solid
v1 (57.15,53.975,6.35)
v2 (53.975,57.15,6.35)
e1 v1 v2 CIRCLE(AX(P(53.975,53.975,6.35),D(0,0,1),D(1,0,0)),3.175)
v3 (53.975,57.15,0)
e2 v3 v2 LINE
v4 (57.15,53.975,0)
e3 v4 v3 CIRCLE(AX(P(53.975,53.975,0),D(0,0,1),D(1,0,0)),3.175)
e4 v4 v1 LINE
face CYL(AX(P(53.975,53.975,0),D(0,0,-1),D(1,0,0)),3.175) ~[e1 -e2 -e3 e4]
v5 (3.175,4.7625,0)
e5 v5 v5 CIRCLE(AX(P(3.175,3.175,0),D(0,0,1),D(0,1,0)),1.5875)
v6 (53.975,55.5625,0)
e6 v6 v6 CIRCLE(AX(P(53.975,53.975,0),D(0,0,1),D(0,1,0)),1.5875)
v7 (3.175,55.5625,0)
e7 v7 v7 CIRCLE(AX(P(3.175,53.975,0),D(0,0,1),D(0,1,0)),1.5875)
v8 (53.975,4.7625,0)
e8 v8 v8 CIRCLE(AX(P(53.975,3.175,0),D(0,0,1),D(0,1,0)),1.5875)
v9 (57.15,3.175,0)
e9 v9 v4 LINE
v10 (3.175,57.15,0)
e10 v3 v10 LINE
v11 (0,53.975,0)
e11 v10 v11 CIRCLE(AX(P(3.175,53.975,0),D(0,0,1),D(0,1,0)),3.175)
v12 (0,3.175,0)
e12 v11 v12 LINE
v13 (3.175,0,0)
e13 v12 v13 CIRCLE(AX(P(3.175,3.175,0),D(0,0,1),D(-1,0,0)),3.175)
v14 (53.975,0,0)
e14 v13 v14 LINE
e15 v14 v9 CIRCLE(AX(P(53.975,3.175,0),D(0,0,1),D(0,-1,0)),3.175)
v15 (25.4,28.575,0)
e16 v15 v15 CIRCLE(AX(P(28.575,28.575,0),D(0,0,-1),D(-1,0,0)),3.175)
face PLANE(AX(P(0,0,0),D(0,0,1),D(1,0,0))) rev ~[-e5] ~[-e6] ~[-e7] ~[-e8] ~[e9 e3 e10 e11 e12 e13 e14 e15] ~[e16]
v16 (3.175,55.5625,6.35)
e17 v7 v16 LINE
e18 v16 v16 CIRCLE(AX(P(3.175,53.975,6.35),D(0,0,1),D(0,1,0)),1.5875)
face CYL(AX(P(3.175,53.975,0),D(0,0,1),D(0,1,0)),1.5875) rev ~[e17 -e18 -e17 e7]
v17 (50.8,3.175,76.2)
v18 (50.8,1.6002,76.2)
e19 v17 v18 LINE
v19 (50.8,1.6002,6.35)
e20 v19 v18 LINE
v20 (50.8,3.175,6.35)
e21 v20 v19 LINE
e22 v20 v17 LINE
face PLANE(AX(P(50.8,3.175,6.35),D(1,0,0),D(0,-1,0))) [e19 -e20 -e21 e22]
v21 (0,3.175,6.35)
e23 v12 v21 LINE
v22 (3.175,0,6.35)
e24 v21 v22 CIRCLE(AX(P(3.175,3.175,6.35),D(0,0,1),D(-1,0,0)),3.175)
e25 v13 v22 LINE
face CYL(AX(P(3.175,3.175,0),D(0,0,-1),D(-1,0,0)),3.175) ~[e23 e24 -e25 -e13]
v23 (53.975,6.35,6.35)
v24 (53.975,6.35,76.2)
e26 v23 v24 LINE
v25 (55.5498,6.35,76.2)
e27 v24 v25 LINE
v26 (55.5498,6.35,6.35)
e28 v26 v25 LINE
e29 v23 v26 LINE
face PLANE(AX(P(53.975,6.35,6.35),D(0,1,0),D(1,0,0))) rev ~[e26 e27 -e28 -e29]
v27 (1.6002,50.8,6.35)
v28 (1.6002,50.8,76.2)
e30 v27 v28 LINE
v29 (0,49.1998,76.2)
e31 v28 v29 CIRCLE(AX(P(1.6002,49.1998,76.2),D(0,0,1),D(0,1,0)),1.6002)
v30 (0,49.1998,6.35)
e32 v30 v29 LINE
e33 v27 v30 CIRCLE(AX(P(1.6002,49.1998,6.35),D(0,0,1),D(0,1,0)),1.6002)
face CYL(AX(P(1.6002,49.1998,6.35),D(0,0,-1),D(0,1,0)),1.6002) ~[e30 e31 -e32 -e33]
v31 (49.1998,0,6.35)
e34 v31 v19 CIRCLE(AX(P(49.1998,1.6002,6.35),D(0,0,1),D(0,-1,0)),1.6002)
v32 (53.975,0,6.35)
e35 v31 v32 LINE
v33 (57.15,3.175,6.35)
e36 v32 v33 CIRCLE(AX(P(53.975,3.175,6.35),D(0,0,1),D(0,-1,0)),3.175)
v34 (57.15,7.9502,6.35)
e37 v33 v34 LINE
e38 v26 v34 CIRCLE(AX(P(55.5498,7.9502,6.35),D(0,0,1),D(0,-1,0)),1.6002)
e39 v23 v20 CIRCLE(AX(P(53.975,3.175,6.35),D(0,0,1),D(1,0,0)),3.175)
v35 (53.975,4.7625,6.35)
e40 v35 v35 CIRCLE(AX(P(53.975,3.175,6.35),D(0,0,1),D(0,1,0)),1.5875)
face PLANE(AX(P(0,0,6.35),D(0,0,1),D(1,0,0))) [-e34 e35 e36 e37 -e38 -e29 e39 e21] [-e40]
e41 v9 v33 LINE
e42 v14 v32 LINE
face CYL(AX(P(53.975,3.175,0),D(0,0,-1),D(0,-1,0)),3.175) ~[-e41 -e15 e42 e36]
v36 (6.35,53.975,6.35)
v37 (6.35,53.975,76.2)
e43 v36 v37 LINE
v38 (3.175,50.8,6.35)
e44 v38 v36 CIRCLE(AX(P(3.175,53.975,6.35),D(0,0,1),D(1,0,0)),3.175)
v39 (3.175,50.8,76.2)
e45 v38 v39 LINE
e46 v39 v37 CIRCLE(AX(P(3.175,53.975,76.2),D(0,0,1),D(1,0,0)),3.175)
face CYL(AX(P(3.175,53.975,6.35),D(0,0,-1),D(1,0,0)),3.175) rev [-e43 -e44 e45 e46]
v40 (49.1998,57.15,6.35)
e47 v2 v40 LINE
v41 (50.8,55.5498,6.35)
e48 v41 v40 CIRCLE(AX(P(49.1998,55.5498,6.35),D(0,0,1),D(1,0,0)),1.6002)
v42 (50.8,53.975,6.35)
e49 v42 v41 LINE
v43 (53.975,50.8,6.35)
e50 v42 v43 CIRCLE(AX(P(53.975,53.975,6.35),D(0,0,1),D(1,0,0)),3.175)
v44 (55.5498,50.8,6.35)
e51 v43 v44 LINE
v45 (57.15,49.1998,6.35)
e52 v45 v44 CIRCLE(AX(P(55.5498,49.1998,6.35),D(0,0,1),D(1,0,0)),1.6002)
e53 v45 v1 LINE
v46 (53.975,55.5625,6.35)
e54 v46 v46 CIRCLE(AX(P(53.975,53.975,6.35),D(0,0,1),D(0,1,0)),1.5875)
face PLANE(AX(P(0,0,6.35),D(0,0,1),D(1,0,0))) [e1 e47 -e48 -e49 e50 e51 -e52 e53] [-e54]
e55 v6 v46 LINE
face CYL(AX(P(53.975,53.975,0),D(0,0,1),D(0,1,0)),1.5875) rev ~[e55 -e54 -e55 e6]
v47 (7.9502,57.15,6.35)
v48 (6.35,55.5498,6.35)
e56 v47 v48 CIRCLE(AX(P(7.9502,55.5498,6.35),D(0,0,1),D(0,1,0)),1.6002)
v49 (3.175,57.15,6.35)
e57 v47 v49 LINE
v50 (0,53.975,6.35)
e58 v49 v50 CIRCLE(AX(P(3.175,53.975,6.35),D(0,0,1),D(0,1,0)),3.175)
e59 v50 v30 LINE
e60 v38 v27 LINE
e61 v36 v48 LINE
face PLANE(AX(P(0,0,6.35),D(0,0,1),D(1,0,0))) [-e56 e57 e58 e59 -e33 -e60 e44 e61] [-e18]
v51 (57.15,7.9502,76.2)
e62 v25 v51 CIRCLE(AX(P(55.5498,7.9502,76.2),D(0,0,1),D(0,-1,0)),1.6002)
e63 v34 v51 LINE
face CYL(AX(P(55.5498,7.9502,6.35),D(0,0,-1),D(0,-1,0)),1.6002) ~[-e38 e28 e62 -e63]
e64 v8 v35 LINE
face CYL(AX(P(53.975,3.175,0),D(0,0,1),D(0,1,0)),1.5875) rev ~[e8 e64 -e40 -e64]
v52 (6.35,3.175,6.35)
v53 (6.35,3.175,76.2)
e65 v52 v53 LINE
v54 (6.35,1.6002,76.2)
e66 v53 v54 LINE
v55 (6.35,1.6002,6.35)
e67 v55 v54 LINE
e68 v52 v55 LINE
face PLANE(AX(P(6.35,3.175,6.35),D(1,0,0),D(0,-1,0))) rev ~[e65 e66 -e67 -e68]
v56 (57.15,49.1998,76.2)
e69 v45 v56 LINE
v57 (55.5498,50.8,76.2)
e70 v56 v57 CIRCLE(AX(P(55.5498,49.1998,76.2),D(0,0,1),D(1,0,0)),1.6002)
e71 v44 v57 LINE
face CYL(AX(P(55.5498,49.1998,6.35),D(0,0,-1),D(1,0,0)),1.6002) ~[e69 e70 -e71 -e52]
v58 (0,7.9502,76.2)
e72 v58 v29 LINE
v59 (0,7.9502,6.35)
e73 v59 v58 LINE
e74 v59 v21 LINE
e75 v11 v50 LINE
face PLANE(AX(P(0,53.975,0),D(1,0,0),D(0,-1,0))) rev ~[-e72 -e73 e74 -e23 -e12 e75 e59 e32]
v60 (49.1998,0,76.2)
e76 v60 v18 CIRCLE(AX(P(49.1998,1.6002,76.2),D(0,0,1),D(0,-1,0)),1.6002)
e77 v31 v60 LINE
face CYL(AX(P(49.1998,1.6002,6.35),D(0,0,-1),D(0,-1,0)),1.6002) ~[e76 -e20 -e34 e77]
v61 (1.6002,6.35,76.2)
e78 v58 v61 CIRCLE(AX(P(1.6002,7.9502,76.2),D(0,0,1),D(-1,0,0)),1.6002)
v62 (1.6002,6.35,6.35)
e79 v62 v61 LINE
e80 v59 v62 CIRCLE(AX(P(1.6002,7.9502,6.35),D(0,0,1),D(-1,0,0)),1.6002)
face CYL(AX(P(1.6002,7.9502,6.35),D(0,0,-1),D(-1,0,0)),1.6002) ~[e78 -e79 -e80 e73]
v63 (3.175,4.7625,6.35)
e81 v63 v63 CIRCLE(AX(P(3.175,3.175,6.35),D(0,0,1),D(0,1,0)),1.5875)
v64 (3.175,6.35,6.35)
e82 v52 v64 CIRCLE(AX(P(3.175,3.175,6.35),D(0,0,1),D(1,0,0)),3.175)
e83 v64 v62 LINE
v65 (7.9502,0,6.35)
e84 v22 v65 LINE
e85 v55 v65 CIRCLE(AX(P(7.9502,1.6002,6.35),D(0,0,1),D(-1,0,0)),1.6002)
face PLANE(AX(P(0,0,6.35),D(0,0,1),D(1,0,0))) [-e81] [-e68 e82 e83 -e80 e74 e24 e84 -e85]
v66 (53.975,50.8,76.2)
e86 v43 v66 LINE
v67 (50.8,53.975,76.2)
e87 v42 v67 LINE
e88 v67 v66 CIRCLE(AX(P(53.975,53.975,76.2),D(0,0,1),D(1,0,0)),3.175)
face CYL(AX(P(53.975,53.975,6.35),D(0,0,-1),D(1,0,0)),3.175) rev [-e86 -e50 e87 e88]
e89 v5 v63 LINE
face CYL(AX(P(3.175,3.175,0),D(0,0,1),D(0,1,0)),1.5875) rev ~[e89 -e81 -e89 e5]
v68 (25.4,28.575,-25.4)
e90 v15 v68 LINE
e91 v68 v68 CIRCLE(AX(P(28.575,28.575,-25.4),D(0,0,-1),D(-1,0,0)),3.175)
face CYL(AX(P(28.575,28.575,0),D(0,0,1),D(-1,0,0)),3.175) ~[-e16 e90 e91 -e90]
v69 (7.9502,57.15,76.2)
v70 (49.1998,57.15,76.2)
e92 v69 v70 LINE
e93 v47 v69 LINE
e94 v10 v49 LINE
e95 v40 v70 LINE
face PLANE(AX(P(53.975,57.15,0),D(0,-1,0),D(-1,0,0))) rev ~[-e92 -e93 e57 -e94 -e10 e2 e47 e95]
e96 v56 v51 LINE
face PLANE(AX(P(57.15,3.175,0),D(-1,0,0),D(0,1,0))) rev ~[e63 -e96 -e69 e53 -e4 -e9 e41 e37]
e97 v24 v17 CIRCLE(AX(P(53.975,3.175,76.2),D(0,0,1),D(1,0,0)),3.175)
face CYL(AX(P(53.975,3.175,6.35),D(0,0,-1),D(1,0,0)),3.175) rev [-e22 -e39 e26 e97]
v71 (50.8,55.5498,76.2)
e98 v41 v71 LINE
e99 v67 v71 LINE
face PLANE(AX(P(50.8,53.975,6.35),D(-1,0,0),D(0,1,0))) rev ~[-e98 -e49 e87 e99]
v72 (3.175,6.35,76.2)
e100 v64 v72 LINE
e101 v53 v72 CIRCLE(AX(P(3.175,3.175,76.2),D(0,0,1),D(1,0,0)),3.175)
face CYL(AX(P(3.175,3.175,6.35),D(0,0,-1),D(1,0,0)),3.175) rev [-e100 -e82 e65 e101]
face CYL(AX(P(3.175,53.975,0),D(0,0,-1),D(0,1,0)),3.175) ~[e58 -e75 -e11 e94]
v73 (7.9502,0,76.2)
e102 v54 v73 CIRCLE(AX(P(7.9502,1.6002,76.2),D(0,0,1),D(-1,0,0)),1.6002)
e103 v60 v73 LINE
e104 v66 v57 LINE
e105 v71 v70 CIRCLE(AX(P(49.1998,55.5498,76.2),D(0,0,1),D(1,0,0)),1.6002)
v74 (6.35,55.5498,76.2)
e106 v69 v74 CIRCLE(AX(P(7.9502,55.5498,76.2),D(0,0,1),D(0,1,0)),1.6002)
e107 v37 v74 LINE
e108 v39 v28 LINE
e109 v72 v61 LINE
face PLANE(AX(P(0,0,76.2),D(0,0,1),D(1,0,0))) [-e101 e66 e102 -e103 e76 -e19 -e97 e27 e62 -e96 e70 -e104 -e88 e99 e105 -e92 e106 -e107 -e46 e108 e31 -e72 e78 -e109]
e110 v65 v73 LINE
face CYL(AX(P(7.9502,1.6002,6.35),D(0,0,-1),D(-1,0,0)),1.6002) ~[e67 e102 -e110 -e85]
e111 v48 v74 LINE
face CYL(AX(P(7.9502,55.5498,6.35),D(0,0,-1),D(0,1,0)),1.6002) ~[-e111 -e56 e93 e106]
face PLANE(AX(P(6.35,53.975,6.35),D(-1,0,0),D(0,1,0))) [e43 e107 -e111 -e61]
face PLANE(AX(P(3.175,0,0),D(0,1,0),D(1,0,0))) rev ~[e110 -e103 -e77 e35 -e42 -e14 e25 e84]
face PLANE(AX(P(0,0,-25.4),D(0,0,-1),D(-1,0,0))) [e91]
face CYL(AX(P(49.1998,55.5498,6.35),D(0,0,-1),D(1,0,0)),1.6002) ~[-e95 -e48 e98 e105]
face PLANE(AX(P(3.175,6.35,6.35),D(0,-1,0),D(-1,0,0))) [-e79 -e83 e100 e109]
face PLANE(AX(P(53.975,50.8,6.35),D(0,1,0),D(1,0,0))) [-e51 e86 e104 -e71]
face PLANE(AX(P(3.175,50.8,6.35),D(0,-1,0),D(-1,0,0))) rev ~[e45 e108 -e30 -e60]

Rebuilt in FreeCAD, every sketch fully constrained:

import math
import FreeCAD as App
import Part
import Sketcher
from FreeCAD import Vector
Q = App.Units.Quantity

doc = App.newDocument("Part")
body = doc.addObject("PartDesign::Body", "Body")

# Sketch on XY plane
sketch1 = body.newObject("Sketcher::SketchObject", "Sketch")
sketch1.AttachmentSupport = (doc.getObject("XY_Plane"), [""])
sketch1.MapMode = "FlatFace"
sketch1.addGeometry([
    Part.ArcOfCircle(Part.Circle(Vector(3.2, 3.2, 0), Vector(0, 0, 1), 3.2), math.radians(180), math.radians(270)),  # 0
    Part.LineSegment(Vector(3.2, 0, 0), Vector(54, 0, 0)),  # 1
    Part.ArcOfCircle(Part.Circle(Vector(54, 3.2, 0), Vector(0, 0, 1), 3.2), math.radians(-90), math.radians(0)),  # 2
    Part.LineSegment(Vector(57.1, 3.2, 0), Vector(57.1, 54, 0)),  # 3
    Part.ArcOfCircle(Part.Circle(Vector(54, 54, 0), Vector(0, 0, 1), 3.2), math.radians(0), math.radians(90)),  # 4
    Part.LineSegment(Vector(54, 57.1, 0), Vector(3.2, 57.1, 0)),  # 5
    Part.ArcOfCircle(Part.Circle(Vector(3.2, 54, 0), Vector(0, 0, 1), 3.2), math.radians(90), math.radians(180)),  # 6
    Part.LineSegment(Vector(0, 54, 0), Vector(0, 3.2, 0)),  # 7
], False)
sketch1.addConstraint([
    Sketcher.Constraint("Tangent", 0, 2, 1, 1),
    Sketcher.Constraint("Tangent", 1, 2, 2, 1),
    Sketcher.Constraint("Tangent", 2, 2, 3, 1),
    Sketcher.Constraint("Tangent", 3, 2, 4, 1),
    Sketcher.Constraint("Tangent", 4, 2, 5, 1),
    Sketcher.Constraint("Tangent", 5, 2, 6, 1),
    Sketcher.Constraint("Tangent", 6, 2, 7, 1),
    Sketcher.Constraint("Tangent", 7, 2, 0, 1),
    Sketcher.Constraint("Horizontal", 1),
    Sketcher.Constraint("Vertical", 3),
    Sketcher.Constraint("Horizontal", 5),
    Sketcher.Constraint("Vertical", 7),
    Sketcher.Constraint("Equal", 0, 2),
    Sketcher.Constraint("Equal", 2, 4),
    Sketcher.Constraint("Equal", 4, 6),
    Sketcher.Constraint("PointOnObject", 0, 2, -1),
    Sketcher.Constraint("PointOnObject", 6, 2, -2),
    Sketcher.Constraint("Equal", 5, 3),
    Sketcher.Constraint("Radius", 0, Q("0.125 in")),
    Sketcher.Constraint("DistanceX", 1, 1, 1, 2, Q("2 in")),
])
pad1 = body.newObject("PartDesign::Pad", "Pad")
pad1.Profile = sketch1
pad1.Length = Q("0.25 in")

# Sketch on XY plane
sketch2 = body.newObject("Sketcher::SketchObject", "Sketch001")
sketch2.AttachmentSupport = (doc.getObject("XY_Plane"), [""])
sketch2.MapMode = "FlatFace"
sketch2.AttachmentOffset = App.Placement(Vector(0, 0, 0.25 * 25.4), App.Rotation())
sketch2.addGeometry([
    Part.LineSegment(Vector(57.1, 8, 0), Vector(57.1, 49.2, 0)),  # 0
    Part.ArcOfCircle(Part.Circle(Vector(55.5, 49.2, 0), Vector(0, 0, 1), 1.6), math.radians(0), math.radians(90)),  # 1
    Part.LineSegment(Vector(55.5, 50.8, 0), Vector(54, 50.8, 0)),  # 2
    Part.ArcOfCircle(Part.Circle(Vector(54, 54, 0), Vector(0, 0, 1), 3.2), math.radians(180), math.radians(270)),  # 3
    Part.LineSegment(Vector(50.8, 54, 0), Vector(50.8, 55.5, 0)),  # 4
    Part.ArcOfCircle(Part.Circle(Vector(49.2, 55.5, 0), Vector(0, 0, 1), 1.6), math.radians(0), math.radians(90)),  # 5
    Part.LineSegment(Vector(49.2, 57.1, 0), Vector(8, 57.1, 0)),  # 6
    Part.ArcOfCircle(Part.Circle(Vector(8, 55.5, 0), Vector(0, 0, 1), 1.6), math.radians(90), math.radians(180)),  # 7
    Part.LineSegment(Vector(6.3, 55.5, 0), Vector(6.3, 54, 0)),  # 8
    Part.ArcOfCircle(Part.Circle(Vector(3.2, 54, 0), Vector(0, 0, 1), 3.2), math.radians(-90), math.radians(0)),  # 9
    Part.LineSegment(Vector(3.2, 50.8, 0), Vector(1.6, 50.8, 0)),  # 10
    Part.ArcOfCircle(Part.Circle(Vector(1.6, 49.2, 0), Vector(0, 0, 1), 1.6), math.radians(90), math.radians(180)),  # 11
    Part.LineSegment(Vector(0, 49.2, 0), Vector(0, 8, 0)),  # 12
    Part.ArcOfCircle(Part.Circle(Vector(1.6, 8, 0), Vector(0, 0, 1), 1.6), math.radians(180), math.radians(270)),  # 13
    Part.LineSegment(Vector(1.6, 6.3, 0), Vector(3.2, 6.3, 0)),  # 14
    Part.ArcOfCircle(Part.Circle(Vector(3.2, 3.2, 0), Vector(0, 0, 1), 3.2), math.radians(0), math.radians(90)),  # 15
    Part.LineSegment(Vector(6.3, 3.2, 0), Vector(6.3, 1.6, 0)),  # 16
    Part.ArcOfCircle(Part.Circle(Vector(8, 1.6, 0), Vector(0, 0, 1), 1.6), math.radians(180), math.radians(270)),  # 17
    Part.LineSegment(Vector(8, 0, 0), Vector(49.2, 0, 0)),  # 18
    Part.ArcOfCircle(Part.Circle(Vector(49.2, 1.6, 0), Vector(0, 0, 1), 1.6), math.radians(-90), math.radians(0)),  # 19
    Part.LineSegment(Vector(50.8, 1.6, 0), Vector(50.8, 3.2, 0)),  # 20
    Part.ArcOfCircle(Part.Circle(Vector(54, 3.2, 0), Vector(0, 0, 1), 3.2), math.radians(90), math.radians(180)),  # 21
    Part.LineSegment(Vector(54, 6.3, 0), Vector(55.5, 6.3, 0)),  # 22
    Part.ArcOfCircle(Part.Circle(Vector(55.5, 8, 0), Vector(0, 0, 1), 1.6), math.radians(-90), math.radians(0)),  # 23
], False)
sketch2.addConstraint([
    Sketcher.Constraint("Tangent", 0, 2, 1, 1),
    Sketcher.Constraint("Tangent", 1, 2, 2, 1),
    Sketcher.Constraint("Tangent", 2, 2, 3, 2),
    Sketcher.Constraint("Tangent", 3, 1, 4, 1),
    Sketcher.Constraint("Tangent", 4, 2, 5, 1),
    Sketcher.Constraint("Tangent", 5, 2, 6, 1),
    Sketcher.Constraint("Tangent", 6, 2, 7, 1),
    Sketcher.Constraint("Tangent", 7, 2, 8, 1),
    Sketcher.Constraint("Tangent", 8, 2, 9, 2),
    Sketcher.Constraint("Tangent", 9, 1, 10, 1),
    Sketcher.Constraint("Tangent", 10, 2, 11, 1),
    Sketcher.Constraint("Tangent", 11, 2, 12, 1),
    Sketcher.Constraint("Tangent", 12, 2, 13, 1),
    Sketcher.Constraint("Tangent", 13, 2, 14, 1),
    Sketcher.Constraint("Tangent", 14, 2, 15, 2),
    Sketcher.Constraint("Tangent", 15, 1, 16, 1),
    Sketcher.Constraint("Tangent", 16, 2, 17, 1),
    Sketcher.Constraint("Tangent", 17, 2, 18, 1),
    Sketcher.Constraint("Tangent", 18, 2, 19, 1),
    Sketcher.Constraint("Tangent", 19, 2, 20, 1),
    Sketcher.Constraint("Tangent", 20, 2, 21, 2),
    Sketcher.Constraint("Tangent", 21, 1, 22, 1),
    Sketcher.Constraint("Tangent", 22, 2, 23, 1),
    Sketcher.Constraint("Tangent", 23, 2, 0, 1),
    Sketcher.Constraint("Vertical", 0),
    Sketcher.Constraint("Horizontal", 2),
    Sketcher.Constraint("Vertical", 4),
    Sketcher.Constraint("Horizontal", 6),
    Sketcher.Constraint("Vertical", 8),
    Sketcher.Constraint("Horizontal", 10),
    Sketcher.Constraint("Vertical", 12),
    Sketcher.Constraint("Horizontal", 14),
    Sketcher.Constraint("Vertical", 16),
    Sketcher.Constraint("Horizontal", 18),
    Sketcher.Constraint("Vertical", 20),
    Sketcher.Constraint("Horizontal", 22),
    Sketcher.Constraint("Equal", 1, 5),
    Sketcher.Constraint("Equal", 5, 7),
    Sketcher.Constraint("Equal", 3, 9),
    Sketcher.Constraint("Equal", 7, 11),
    Sketcher.Constraint("Equal", 11, 13),
    Sketcher.Constraint("Equal", 9, 15),
    Sketcher.Constraint("Equal", 13, 17),
    Sketcher.Constraint("Equal", 17, 19),
    Sketcher.Constraint("Equal", 15, 21),
    Sketcher.Constraint("Equal", 19, 23),
    Sketcher.Constraint("PointOnObject", 11, 2, -2),
    Sketcher.Constraint("PointOnObject", 17, 2, -1),
    Sketcher.Constraint("Horizontal", 3, 3, 9, 3),
    Sketcher.Constraint("Horizontal", 15, 3, 21, 3),
    Sketcher.Constraint("Vertical", 9, 3, 15, 3),
    Sketcher.Constraint("Vertical", 5, 3, 19, 3),
    Sketcher.Constraint("Equal", 2, 10),
    Sketcher.Constraint("Equal", 18, 0),
    Sketcher.Constraint("Equal", 22, 4),
    Sketcher.Constraint("Equal", 8, 16),
    Sketcher.Constraint("Radius", 1, Q("0.063 in")),
    Sketcher.Constraint("DistanceY", -1, 1, 1, 2, Q("2 in")),
    Sketcher.Constraint("Radius", 3, Q("0.125 in")),
    Sketcher.Constraint("DistanceX", 9, 3, 3, 3, Q("2 in")),
])
pad2 = body.newObject("PartDesign::Pad", "Pad001")
pad2.Profile = sketch2
pad2.Length = Q("2.75 in")

# Sketch on XY plane
sketch3 = body.newObject("Sketcher::SketchObject", "Sketch002")
sketch3.AttachmentSupport = (doc.getObject("XY_Plane"), [""])
sketch3.MapMode = "FlatFace"
sketch3.addGeometry([
    Part.Circle(Vector(54, 54, 0), Vector(0, 0, 1), 1.6),
    Part.Circle(Vector(3.2, 54, 0), Vector(0, 0, 1), 1.6),
    Part.Circle(Vector(3.2, 3.2, 0), Vector(0, 0, 1), 1.6),
    Part.Circle(Vector(54, 3.2, 0), Vector(0, 0, 1), 1.6),
], False)
sketch3.addConstraint([
    Sketcher.Constraint("Equal", 0, 1),
    Sketcher.Constraint("Equal", 1, 2),
    Sketcher.Constraint("Equal", 2, 3),
    Sketcher.Constraint("Horizontal", 0, 3, 1, 3),
    Sketcher.Constraint("Horizontal", 2, 3, 3, 3),
    Sketcher.Constraint("Vertical", 1, 3, 2, 3),
    Sketcher.Constraint("Vertical", 0, 3, 3, 3),
    Sketcher.Constraint("Diameter", 0, Q("0.125 in")),
    Sketcher.Constraint("DistanceX", 1, 3, 0, 3, Q("2 in")),
    Sketcher.Constraint("DistanceY", 2, 3, 1, 3, Q("2 in")),
    Sketcher.Constraint("DistanceX", -1, 1, 0, 3, Q("2.125 in")),
    Sketcher.Constraint("DistanceY", -1, 1, 0, 3, Q("2.125 in")),
])
doc.recompute()
hole = body.newObject("PartDesign::Hole", "Hole")
hole.Profile = sketch3
hole.ThreadType = "None"
hole.Diameter = Q("0.125 in")
hole.DepthType = "Dimension"
hole.Depth = Q("1 in")
hole.DrillPoint = "Angled"
hole.DrillPointAngle = 118
hole.Reversed = True

# Sketch on XY plane
sketch4 = body.newObject("Sketcher::SketchObject", "Sketch003")
sketch4.AttachmentSupport = (doc.getObject("XY_Plane"), [""])
sketch4.MapMode = "FlatFace"
sketch4.addGeometry(Part.Circle(Vector(28.6, 28.6, 0), Vector(0, 0, 1), 3.2), False)
sketch4.addConstraint([
    Sketcher.Constraint("Diameter", 0, Q("0.25 in")),
    Sketcher.Constraint("DistanceX", -1, 1, 0, 3, Q("1.125 in")),
    Sketcher.Constraint("DistanceY", -1, 1, 0, 3, Q("1.125 in")),
])
pad3 = body.newObject("PartDesign::Pad", "Pad002")
pad3.Profile = sketch4
pad3.Length = Q("1 in")
pad3.Reversed = True

doc.recompute()
